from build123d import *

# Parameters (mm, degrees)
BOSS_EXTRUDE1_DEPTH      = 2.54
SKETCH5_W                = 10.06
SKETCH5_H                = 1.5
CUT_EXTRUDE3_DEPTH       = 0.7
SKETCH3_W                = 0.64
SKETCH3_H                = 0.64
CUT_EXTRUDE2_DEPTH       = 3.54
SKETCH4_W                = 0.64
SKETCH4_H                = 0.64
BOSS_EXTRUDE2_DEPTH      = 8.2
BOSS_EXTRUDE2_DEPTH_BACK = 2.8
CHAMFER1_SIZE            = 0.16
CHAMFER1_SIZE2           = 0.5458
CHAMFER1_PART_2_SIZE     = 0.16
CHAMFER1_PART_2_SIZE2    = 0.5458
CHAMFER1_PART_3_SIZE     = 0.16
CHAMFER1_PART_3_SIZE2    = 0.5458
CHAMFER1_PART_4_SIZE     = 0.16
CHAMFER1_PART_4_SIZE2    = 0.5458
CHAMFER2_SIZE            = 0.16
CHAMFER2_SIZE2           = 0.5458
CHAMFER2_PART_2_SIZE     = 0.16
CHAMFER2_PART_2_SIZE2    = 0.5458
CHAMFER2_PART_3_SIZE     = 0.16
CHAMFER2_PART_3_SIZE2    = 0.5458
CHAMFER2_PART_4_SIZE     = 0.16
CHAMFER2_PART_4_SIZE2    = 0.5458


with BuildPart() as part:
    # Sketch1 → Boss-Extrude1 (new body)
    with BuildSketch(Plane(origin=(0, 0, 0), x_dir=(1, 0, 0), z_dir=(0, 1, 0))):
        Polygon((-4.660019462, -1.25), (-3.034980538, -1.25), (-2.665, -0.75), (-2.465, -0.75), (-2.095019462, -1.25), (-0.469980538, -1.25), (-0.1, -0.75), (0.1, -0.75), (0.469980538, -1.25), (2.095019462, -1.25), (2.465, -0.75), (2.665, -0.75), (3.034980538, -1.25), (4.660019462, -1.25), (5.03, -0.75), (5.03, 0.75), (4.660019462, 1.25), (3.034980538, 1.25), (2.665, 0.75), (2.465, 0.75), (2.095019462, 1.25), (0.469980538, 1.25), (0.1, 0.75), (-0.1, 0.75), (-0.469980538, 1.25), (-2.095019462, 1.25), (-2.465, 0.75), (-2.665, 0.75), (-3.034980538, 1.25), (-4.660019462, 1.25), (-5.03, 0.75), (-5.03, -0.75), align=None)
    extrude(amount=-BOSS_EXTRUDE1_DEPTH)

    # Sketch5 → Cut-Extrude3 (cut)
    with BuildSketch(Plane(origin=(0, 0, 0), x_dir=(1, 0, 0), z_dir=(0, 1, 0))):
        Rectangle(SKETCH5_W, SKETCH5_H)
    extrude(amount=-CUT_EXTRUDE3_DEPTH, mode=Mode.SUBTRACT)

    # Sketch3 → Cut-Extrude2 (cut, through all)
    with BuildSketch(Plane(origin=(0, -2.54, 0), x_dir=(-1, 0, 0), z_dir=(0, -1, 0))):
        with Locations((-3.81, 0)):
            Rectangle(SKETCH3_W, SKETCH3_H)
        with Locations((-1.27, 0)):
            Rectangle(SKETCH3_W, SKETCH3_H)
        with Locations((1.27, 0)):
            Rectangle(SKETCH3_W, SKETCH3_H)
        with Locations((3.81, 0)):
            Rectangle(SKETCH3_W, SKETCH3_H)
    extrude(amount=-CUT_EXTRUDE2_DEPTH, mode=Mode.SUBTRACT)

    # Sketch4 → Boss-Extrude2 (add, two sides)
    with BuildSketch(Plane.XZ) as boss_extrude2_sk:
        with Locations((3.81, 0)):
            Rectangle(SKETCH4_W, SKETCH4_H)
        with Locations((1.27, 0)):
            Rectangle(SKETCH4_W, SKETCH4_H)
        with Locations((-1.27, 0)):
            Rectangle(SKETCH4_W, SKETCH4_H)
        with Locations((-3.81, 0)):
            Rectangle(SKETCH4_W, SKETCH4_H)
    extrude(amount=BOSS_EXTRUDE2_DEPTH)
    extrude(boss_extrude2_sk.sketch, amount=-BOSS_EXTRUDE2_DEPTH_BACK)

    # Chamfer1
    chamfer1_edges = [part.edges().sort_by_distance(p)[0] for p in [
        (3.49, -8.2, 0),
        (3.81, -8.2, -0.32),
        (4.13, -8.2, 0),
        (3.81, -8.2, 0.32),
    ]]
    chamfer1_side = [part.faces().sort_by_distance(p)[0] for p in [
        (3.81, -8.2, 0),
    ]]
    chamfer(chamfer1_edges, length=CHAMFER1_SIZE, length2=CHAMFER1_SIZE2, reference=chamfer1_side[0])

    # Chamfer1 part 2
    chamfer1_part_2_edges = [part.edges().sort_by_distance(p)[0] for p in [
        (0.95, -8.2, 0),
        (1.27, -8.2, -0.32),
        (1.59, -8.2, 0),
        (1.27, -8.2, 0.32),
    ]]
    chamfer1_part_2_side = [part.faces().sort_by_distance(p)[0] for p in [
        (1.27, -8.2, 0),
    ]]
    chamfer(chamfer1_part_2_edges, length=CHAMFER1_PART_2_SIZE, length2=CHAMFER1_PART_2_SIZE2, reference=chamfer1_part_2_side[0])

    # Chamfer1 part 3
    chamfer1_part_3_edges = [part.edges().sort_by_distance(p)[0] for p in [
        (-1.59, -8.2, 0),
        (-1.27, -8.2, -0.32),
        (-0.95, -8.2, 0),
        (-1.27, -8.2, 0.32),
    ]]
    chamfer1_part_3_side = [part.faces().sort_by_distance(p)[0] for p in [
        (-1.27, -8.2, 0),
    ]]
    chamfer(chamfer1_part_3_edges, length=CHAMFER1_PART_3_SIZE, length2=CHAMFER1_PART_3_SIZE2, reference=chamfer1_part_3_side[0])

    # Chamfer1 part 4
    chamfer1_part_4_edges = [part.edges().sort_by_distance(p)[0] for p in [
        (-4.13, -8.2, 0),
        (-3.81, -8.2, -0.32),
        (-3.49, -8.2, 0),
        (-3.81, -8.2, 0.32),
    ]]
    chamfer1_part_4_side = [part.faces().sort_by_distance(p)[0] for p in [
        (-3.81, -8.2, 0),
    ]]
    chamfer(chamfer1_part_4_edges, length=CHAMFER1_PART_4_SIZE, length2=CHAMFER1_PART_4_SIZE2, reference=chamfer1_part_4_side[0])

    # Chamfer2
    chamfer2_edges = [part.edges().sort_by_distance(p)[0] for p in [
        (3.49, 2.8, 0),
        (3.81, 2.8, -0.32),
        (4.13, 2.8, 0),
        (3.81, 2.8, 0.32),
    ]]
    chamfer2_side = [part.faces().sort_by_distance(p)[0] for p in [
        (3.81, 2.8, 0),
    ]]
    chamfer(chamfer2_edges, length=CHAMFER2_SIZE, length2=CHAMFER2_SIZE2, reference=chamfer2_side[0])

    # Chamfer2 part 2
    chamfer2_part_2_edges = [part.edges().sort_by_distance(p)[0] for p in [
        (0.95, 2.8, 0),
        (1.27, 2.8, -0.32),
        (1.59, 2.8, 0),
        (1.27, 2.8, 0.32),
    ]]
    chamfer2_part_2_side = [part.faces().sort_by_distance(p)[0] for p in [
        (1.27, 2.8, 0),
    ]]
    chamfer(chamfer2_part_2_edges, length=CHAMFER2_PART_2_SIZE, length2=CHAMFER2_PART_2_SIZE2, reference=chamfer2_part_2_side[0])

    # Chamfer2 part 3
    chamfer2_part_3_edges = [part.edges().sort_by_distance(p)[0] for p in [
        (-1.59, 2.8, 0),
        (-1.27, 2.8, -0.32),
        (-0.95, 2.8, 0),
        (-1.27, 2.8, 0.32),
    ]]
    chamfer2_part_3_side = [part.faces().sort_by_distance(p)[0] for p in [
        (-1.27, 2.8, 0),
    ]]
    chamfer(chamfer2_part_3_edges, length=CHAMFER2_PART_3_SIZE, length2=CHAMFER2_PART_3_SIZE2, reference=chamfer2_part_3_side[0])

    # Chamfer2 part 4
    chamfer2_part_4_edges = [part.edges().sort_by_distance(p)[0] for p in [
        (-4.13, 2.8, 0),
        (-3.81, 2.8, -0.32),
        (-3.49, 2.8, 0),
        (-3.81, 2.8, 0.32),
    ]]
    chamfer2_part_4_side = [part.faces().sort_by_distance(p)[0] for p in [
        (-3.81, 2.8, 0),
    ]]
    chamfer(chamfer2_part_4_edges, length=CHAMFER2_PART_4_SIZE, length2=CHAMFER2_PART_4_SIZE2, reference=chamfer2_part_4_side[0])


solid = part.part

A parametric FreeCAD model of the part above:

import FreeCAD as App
import Part
import Sketcher

V = App.Vector
Q = App.Units.Quantity


def edges_at(feature, points):
    """Names of the edges that pass closest to the given points."""
    edges = feature.Shape.Edges
    near = lambda p: min(range(len(edges)), key=lambda i: edges[i].distToShape(Part.Vertex(*p))[0])
    return sorted({f"Edge{near(p) + 1}" for p in points})


def add_polygon(sketch, points):
    """Adds a closed chain of lines whose ends are joined by coincident constraints."""
    first, n = sketch.GeometryCount, len(points)
    for a, b in zip(points, points[1:] + points[:1]):
        sketch.addGeometry(Part.LineSegment(App.Vector(*a, 0), App.Vector(*b, 0)), False)
    for i in range(n):
        sketch.addConstraint(Sketcher.Constraint("Coincident", first + i, 2, first + (i + 1) % n, 1))

doc = App.newDocument("Part")
body = doc.addObject("PartDesign::Body", "Body")

# Sketch on XZ plane
sketch1 = doc.addObject("Sketcher::SketchObject", "Sketch")
body.addObject(sketch1)
sketch1.AttachmentSupport = (doc.XZ_Plane, [""])
sketch1.MapMode = "FlatFace"
add_polygon(sketch1, [(-4.660019, 1.25), (-3.034981, 1.25), (-2.665, 0.75), (-2.465, 0.75), (-2.095019, 1.25), (-0.469981, 1.25), (-0.1, 0.75), (0.1, 0.75), (0.469981, 1.25), (2.095019, 1.25), (2.465, 0.75), (2.665, 0.75), (3.034981, 1.25), (4.660019, 1.25), (5.03, 0.75), (5.03, -0.75), (4.660019, -1.25), (3.034981, -1.25), (2.665, -0.75), (2.465, -0.75), (2.095019, -1.25), (0.469981, -1.25), (0.1, -0.75), (-0.1, -0.75), (-0.469981, -1.25), (-2.095019, -1.25), (-2.465, -0.75), (-2.665, -0.75), (-3.034981, -1.25), (-4.660019, -1.25), (-5.03, -0.75), (-5.03, 0.75)])  # lines 0-31
sketch1.addConstraint([
    Sketcher.Constraint("Horizontal", 0),
    Sketcher.Constraint("Horizontal", 2),
    Sketcher.Constraint("Horizontal", 4),
    Sketcher.Constraint("Horizontal", 6),
    Sketcher.Constraint("Horizontal", 8),
    Sketcher.Constraint("Horizontal", 10),
    Sketcher.Constraint("Horizontal", 12),
    Sketcher.Constraint("Vertical", 14),
    Sketcher.Constraint("Horizontal", 16),
    Sketcher.Constraint("Horizontal", 18),
    Sketcher.Constraint("Horizontal", 20),
    Sketcher.Constraint("Horizontal", 22),
    Sketcher.Constraint("Horizontal", 24),
    Sketcher.Constraint("Horizontal", 26),
    Sketcher.Constraint("Horizontal", 28),
    Sketcher.Constraint("Vertical", 30),
    Sketcher.Constraint("Symmetric", 0, 2, 16, 2, -1, 1),
    Sketcher.Constraint("Symmetric", 1, 2, 17, 2, -1, 1),
    Sketcher.Constraint("Symmetric", 3, 2, 19, 2, -1, 1),
    Sketcher.Constraint("Symmetric", 5, 2, 21, 2, -1, 1),
    Sketcher.Constraint("Symmetric", 7, 2, 23, 2, -1, 1),
    Sketcher.Constraint("Symmetric", 9, 2, 25, 2, -1, 1),
    Sketcher.Constraint("Symmetric", 11, 2, 27, 2, -1, 1),
    Sketcher.Constraint("Symmetric", 13, 2, 29, 2, -1, 1),
    Sketcher.Constraint("Symmetric", 4, 2, 7, 2, -2),
    Sketcher.Constraint("Symmetric", 2, 2, 9, 2, -2),
    Sketcher.Constraint("Symmetric", 0, 2, 11, 2, -2),
    Sketcher.Constraint("Parallel", 1, 5),
    Sketcher.Constraint("Parallel", 3, 7),
    Sketcher.Constraint("Parallel", 5, 9),
    Sketcher.Constraint("Parallel", 7, 11),
    Sketcher.Constraint("Parallel", 9, 13),
    Sketcher.Constraint("Parallel", 11, 15),
    Sketcher.Constraint("Parallel", 15, 19),
    Sketcher.Constraint("Parallel", 17, 21),
    Sketcher.Constraint("Parallel", 19, 23),
    Sketcher.Constraint("Parallel", 21, 25),
    Sketcher.Constraint("Parallel", 23, 27),
    Sketcher.Constraint("Parallel", 25, 29),
    Sketcher.Constraint("Parallel", 27, 31),
    Sketcher.Constraint("Horizontal", 0, 2, 3, 2),
    Sketcher.Constraint("Horizontal", 2, 2, 5, 2),
    Sketcher.Constraint("Horizontal", 10, 2, 13, 2),
    Sketcher.Constraint("Horizontal", 14, 2, 17, 2),
    Sketcher.Constraint("Horizontal", 13, 2, 30, 2),
    Sketcher.Constraint("Vertical", 12, 2, 15, 2),
    Sketcher.Constraint("Equal", 0, 4),
    Sketcher.Constraint("Equal", 2, 6),
    Sketcher.Constraint("DistanceX", 2, 1, 2, 2, 0.2),
    Sketcher.Constraint("DistanceY", 14, 2, 14, 1, 1.5),
    Sketcher.Constraint("Angle", 1, Q("-53.5 deg")),
    Sketcher.Constraint("DistanceY", 14, 2, 12, 2, 2.0),
    Sketcher.Constraint("DistanceX", -1, 1, 13, 2, 5.03),
])
pad1 = doc.addObject("PartDesign::Pad", "Pad")
body.addObject(pad1)
pad1.Profile = sketch1
pad1.Length = 2.54

# Sketch on XZ plane
sketch2 = doc.addObject("Sketcher::SketchObject", "Sketch001")
body.addObject(sketch2)
sketch2.AttachmentSupport = (doc.XZ_Plane, [""])
sketch2.MapMode = "FlatFace"
add_polygon(sketch2, [(-5.03, -0.75), (-5.03, 0.75), (5.03, 0.75), (5.03, -0.75)])  # lines 0-3
sketch2.addConstraint([
    Sketcher.Constraint("Vertical", 0),
    Sketcher.Constraint("Horizontal", 1),
    Sketcher.Constraint("Vertical", 2),
    Sketcher.Constraint("Horizontal", 3),
    Sketcher.Constraint("Symmetric", 0, 2, 2, 2, -1, 1),
    Sketcher.Constraint("DistanceY", 0, 1, 0, 2, 1.5),
    Sketcher.Constraint("DistanceX", 1, 1, 1, 2, 10.06),
])
pocket1 = doc.addObject("PartDesign::Pocket", "Pocket")
body.addObject(pocket1)
pocket1.Profile = sketch2
pocket1.Length = 0.7
pocket1.Reversed = True

# Sketch on XZ plane
sketch3 = doc.addObject("Sketcher::SketchObject", "Sketch002")
body.addObject(sketch3)
sketch3.AttachmentSupport = (doc.XZ_Plane, [""])
sketch3.MapMode = "FlatFace"
sketch3.AttachmentOffset = App.Placement(V(0, 0, 2.54), App.Rotation())
add_polygon(sketch3, [(4.13, -0.32), (4.13, 0.32), (3.49, 0.32), (3.49, -0.32)])  # lines 0-3
add_polygon(sketch3, [(1.59, -0.32), (1.59, 0.32), (0.95, 0.32), (0.95, -0.32)])  # lines 4-7
add_polygon(sketch3, [(-0.95, -0.32), (-0.95, 0.32), (-1.59, 0.32), (-1.59, -0.32)])  # lines 8-11
add_polygon(sketch3, [(-3.49, -0.32), (-3.49, 0.32), (-4.13, 0.32), (-4.13, -0.32)])  # lines 12-15
sketch3.addConstraint([
    Sketcher.Constraint("Vertical", 0),
    Sketcher.Constraint("Horizontal", 1),
    Sketcher.Constraint("Vertical", 2),
    Sketcher.Constraint("Horizontal", 3),
    Sketcher.Constraint("Vertical", 4),
    Sketcher.Constraint("Horizontal", 5),
    Sketcher.Constraint("Vertical", 6),
    Sketcher.Constraint("Horizontal", 7),
    Sketcher.Constraint("Vertical", 8),
    Sketcher.Constraint("Horizontal", 9),
    Sketcher.Constraint("Vertical", 10),
    Sketcher.Constraint("Horizontal", 11),
    Sketcher.Constraint("Vertical", 12),
    Sketcher.Constraint("Horizontal", 13),
    Sketcher.Constraint("Vertical", 14),
    Sketcher.Constraint("Horizontal", 15),
    Sketcher.Constraint("Symmetric", 6, 2, 8, 2, -1, 1),
    Sketcher.Constraint("Symmetric", 4, 2, 10, 2, -1, 1),
    Sketcher.Constraint("Symmetric", 2, 2, 12, 2, -1, 1),
    Sketcher.Constraint("Symmetric", 0, 2, 14, 2, -1, 1),
    Sketcher.Constraint("Horizontal", 1, 2, 4, 2),
    Sketcher.Constraint("Horizontal", 3, 2, 6, 2),
    Sketcher.Constraint("Horizontal", 5, 2, 8, 2),
    Sketcher.Constraint("Equal", 3, 5),
    Sketcher.Constraint("Equal", 15, 0),
    Sketcher.Constraint("DistanceX", 1, 2, 1, 1, 0.64),
    Sketcher.Constraint("DistanceX", 4, 2, 1, 2, 1.9),
    Sketcher.Constraint("DistanceX", 8, 2, 5, 2, 1.9),
])
pocket2 = doc.addObject("PartDesign::Pocket", "Pocket001")
body.addObject(pocket2)
pocket2.Profile = sketch3
pocket2.Type = "ThroughAll"

# Sketch on XZ plane
sketch4 = doc.addObject("Sketcher::SketchObject", "Sketch003")
body.addObject(sketch4)
sketch4.AttachmentSupport = (doc.XZ_Plane, [""])
sketch4.MapMode = "FlatFace"
add_polygon(sketch4, [(3.49, 0.32), (3.49, -0.32), (4.13, -0.32), (4.13, 0.32)])  # lines 0-3
add_polygon(sketch4, [(0.95, 0.32), (0.95, -0.32), (1.59, -0.32), (1.59, 0.32)])  # lines 4-7
add_polygon(sketch4, [(-1.59, 0.32), (-1.59, -0.32), (-0.95, -0.32), (-0.95, 0.32)])  # lines 8-11
add_polygon(sketch4, [(-4.13, 0.32), (-4.13, -0.32), (-3.49, -0.32), (-3.49, 0.32)])  # lines 12-15
sketch4.addConstraint([
    Sketcher.Constraint("Vertical", 0),
    Sketcher.Constraint("Horizontal", 1),
    Sketcher.Constraint("Vertical", 2),
    Sketcher.Constraint("Horizontal", 3),
    Sketcher.Constraint("Vertical", 4),
    Sketcher.Constraint("Horizontal", 5),
    Sketcher.Constraint("Vertical", 6),
    Sketcher.Constraint("Horizontal", 7),
    Sketcher.Constraint("Vertical", 8),
    Sketcher.Constraint("Horizontal", 9),
    Sketcher.Constraint("Vertical", 10),
    Sketcher.Constraint("Horizontal", 11),
    Sketcher.Constraint("Vertical", 12),
    Sketcher.Constraint("Horizontal", 13),
    Sketcher.Constraint("Vertical", 14),
    Sketcher.Constraint("Horizontal", 15),
    Sketcher.Constraint("Symmetric", 6, 2, 8, 2, -1, 1),
    Sketcher.Constraint("Symmetric", 4, 2, 10, 2, -1, 1),
    Sketcher.Constraint("Symmetric", 2, 2, 12, 2, -1, 1),
    Sketcher.Constraint("Symmetric", 0, 2, 14, 2, -1, 1),
    Sketcher.Constraint("Horizontal", 1, 2, 4, 2),
    Sketcher.Constraint("Horizontal", 3, 2, 6, 2),
    Sketcher.Constraint("Horizontal", 5, 2, 8, 2),
    Sketcher.Constraint("Equal", 3, 5),
    Sketcher.Constraint("Equal", 15, 0),
    Sketcher.Constraint("DistanceX", 1, 1, 1, 2, 0.64),
    Sketcher.Constraint("DistanceX", 5, 2, 0, 2, 1.9),
    Sketcher.Constraint("DistanceX", 9, 2, 4, 2, 1.9),
])
pad2 = doc.addObject("PartDesign::Pad", "Pad001")
body.addObject(pad2)
pad2.Profile = sketch4
pad2.Type = "TwoLengths"
pad2.Length = 8.2
pad2.Length2 = 2.8
doc.recompute()

chamfer = doc.addObject("PartDesign::Chamfer", "Chamfer")
body.addObject(chamfer)
chamfer.Base = (pad2, edges_at(pad2, [
    (3.49, -8.2, 0),
    (3.81, -8.2, -0.32),
    (4.13, -8.2, 0),
    (3.81, -8.2, 0.32),
]))
chamfer.ChamferType = "Two distances"
chamfer.Size = 0.16
chamfer.Size2 = 0.5458
chamfer.FlipDirection = True
doc.recompute()

chamfer2 = doc.addObject("PartDesign::Chamfer", "Chamfer001")
body.addObject(chamfer2)
chamfer2.Base = (chamfer, edges_at(chamfer, [
    (0.95, -8.2, 0),
    (1.27, -8.2, -0.32),
    (1.59, -8.2, 0),
    (1.27, -8.2, 0.32),
]))
chamfer2.ChamferType = "Two distances"
chamfer2.Size = 0.16
chamfer2.Size2 = 0.5458
chamfer2.FlipDirection = True
doc.recompute()

chamfer3 = doc.addObject("PartDesign::Chamfer", "Chamfer002")
body.addObject(chamfer3)
chamfer3.Base = (chamfer2, edges_at(chamfer2, [
    (-1.59, -8.2, 0),
    (-1.27, -8.2, -0.32),
    (-0.95, -8.2, 0),
    (-1.27, -8.2, 0.32),
]))
chamfer3.ChamferType = "Two distances"
chamfer3.Size = 0.16
chamfer3.Size2 = 0.5458
chamfer3.FlipDirection = True
doc.recompute()

chamfer4 = doc.addObject("PartDesign::Chamfer", "Chamfer003")
body.addObject(chamfer4)
chamfer4.Base = (chamfer3, edges_at(chamfer3, [
    (-4.13, -8.2, 0),
    (-3.81, -8.2, -0.32),
    (-3.49, -8.2, 0),
    (-3.81, -8.2, 0.32),
]))
chamfer4.ChamferType = "Two distances"
chamfer4.Size = 0.16
chamfer4.Size2 = 0.5458
chamfer4.FlipDirection = True
doc.recompute()

chamfer5 = doc.addObject("PartDesign::Chamfer", "Chamfer004")
body.addObject(chamfer5)
chamfer5.Base = (chamfer4, edges_at(chamfer4, [
    (3.49, 2.8, 0),
    (3.81, 2.8, -0.32),
    (4.13, 2.8, 0),
    (3.81, 2.8, 0.32),
]))
chamfer5.ChamferType = "Two distances"
chamfer5.Size = 0.16
chamfer5.Size2 = 0.5458
chamfer5.FlipDirection = True
doc.recompute()

chamfer6 = doc.addObject("PartDesign::Chamfer", "Chamfer005")
body.addObject(chamfer6)
chamfer6.Base = (chamfer5, edges_at(chamfer5, [
    (0.95, 2.8, 0),
    (1.27, 2.8, -0.32),
    (1.59, 2.8, 0),
    (1.27, 2.8, 0.32),
]))
chamfer6.ChamferType = "Two distances"
chamfer6.Size = 0.16
chamfer6.Size2 = 0.5458
chamfer6.FlipDirection = True
doc.recompute()

chamfer7 = doc.addObject("PartDesign::Chamfer", "Chamfer006")
body.addObject(chamfer7)
chamfer7.Base = (chamfer6, edges_at(chamfer6, [
    (-1.59, 2.8, 0),
    (-1.27, 2.8, -0.32),
    (-0.95, 2.8, 0),
    (-1.27, 2.8, 0.32),
]))
chamfer7.ChamferType = "Two distances"
chamfer7.Size = 0.16
chamfer7.Size2 = 0.5458
chamfer7.FlipDirection = True
doc.recompute()

chamfer8 = doc.addObject("PartDesign::Chamfer", "Chamfer007")
body.addObject(chamfer8)
chamfer8.Base = (chamfer7, edges_at(chamfer7, [
    (-4.13, 2.8, 0),
    (-3.81, 2.8, -0.32),
    (-3.49, 2.8, 0),
    (-3.81, 2.8, 0.32),
]))
chamfer8.ChamferType = "Two distances"
chamfer8.Size = 0.16
chamfer8.Size2 = 0.5458
chamfer8.FlipDirection = True

doc.recompute()
